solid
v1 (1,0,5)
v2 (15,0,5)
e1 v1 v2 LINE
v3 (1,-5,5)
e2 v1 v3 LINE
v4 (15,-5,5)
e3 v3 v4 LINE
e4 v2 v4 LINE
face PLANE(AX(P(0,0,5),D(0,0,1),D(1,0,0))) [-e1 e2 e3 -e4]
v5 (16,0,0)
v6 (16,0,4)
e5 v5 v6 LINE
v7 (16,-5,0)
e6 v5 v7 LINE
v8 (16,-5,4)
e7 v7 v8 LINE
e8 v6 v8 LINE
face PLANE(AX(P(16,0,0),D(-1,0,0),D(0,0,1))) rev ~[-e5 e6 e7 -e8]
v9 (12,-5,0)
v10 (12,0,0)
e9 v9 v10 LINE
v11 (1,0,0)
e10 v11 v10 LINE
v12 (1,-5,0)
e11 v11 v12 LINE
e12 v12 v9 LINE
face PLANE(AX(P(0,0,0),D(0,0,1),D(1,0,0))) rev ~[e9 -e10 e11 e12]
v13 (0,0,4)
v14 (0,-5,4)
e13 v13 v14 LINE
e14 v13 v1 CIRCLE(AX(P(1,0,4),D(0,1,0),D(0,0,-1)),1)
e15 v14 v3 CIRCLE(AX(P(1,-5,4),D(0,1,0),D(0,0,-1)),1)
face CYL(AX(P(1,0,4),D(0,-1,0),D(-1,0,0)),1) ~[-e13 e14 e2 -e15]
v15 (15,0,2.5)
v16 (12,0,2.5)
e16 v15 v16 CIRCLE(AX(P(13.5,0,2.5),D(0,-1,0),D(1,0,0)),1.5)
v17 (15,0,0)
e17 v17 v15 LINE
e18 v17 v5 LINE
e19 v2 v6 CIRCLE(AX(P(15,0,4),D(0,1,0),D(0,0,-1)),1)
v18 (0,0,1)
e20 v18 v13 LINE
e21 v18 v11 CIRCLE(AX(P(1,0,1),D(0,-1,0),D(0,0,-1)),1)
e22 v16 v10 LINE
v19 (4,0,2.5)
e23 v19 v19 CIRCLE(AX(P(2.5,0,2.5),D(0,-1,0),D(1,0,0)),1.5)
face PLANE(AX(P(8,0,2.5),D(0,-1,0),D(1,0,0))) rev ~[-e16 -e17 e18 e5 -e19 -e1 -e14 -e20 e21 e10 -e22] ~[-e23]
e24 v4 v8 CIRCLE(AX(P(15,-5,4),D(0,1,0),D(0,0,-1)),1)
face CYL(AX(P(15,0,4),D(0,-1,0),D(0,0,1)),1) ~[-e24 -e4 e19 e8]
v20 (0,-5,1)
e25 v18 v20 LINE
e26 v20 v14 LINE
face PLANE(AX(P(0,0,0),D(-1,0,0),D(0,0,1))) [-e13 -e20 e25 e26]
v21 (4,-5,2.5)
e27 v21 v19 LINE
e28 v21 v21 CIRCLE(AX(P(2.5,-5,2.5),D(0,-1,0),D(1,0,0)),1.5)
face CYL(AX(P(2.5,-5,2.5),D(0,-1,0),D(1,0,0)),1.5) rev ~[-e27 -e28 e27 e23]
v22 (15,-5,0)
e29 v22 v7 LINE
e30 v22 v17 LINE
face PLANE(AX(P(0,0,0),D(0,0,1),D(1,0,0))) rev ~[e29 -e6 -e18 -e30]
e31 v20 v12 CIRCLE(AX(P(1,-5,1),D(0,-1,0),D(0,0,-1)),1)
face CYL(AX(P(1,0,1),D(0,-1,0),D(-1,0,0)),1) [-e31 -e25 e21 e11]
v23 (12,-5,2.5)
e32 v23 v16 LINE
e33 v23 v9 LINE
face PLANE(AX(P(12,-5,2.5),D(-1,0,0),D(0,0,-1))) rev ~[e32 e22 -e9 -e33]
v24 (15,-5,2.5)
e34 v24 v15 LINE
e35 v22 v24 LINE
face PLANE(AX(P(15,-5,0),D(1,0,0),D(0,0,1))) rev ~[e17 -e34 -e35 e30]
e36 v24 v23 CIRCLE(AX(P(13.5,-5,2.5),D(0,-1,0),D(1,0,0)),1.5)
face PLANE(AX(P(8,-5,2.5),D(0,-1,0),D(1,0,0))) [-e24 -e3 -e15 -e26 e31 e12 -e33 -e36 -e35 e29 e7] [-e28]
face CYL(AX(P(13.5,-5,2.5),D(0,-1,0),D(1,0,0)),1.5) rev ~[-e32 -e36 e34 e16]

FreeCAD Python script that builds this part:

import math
import FreeCAD as App
import Part
import Sketcher

V = App.Vector


def edges_at(feature, points):
    """Names of the edges that pass closest to the given points."""
    edges = feature.Shape.Edges
    near = lambda p: min(range(len(edges)), key=lambda i: edges[i].distToShape(Part.Vertex(*p))[0])
    return sorted({f"Edge{near(p) + 1}" for p in points})


def add_polygon(sketch, points):
    """Adds a closed chain of lines whose ends are joined by coincident constraints."""
    first, n = sketch.GeometryCount, len(points)
    for a, b in zip(points, points[1:] + points[:1]):
        sketch.addGeometry(Part.LineSegment(App.Vector(*a, 0), App.Vector(*b, 0)), False)
    for i in range(n):
        sketch.addConstraint(Sketcher.Constraint("Coincident", first + i, 2, first + (i + 1) % n, 1))

doc = App.newDocument("Part")
params = doc.addObject("Spreadsheet::Sheet", "Params")
for row, (alias, value) in enumerate([
    ("sketch1_width", "16 mm"),
    ("sketch1_height", "5 mm"),
    ("pad1_length", "5 mm"),
    ("sketch2_diameter", "3 mm"),
    ("sketch2_height", "2.5 mm"),
    ("fillet_radius", "1 mm"),
], start=1):
    params.set(f"A{row}", alias)
    params.set(f"B{row}", "=" + value)
    params.setAlias(f"B{row}", alias)

body = doc.addObject("PartDesign::Body", "Body")

# Sketch on XZ plane
sketch1 = body.newObject("Sketcher::SketchObject", "Sketch")
sketch1.AttachmentSupport = (doc.getObject("XZ_Plane"), [""])
sketch1.MapMode = "FlatFace"
add_polygon(sketch1, [(0, 5), (0, 0), (16, 0), (16, 5)])  # lines 0-3
sketch1.addConstraint(Sketcher.Constraint("Vertical", 0))
sketch1.addConstraint(Sketcher.Constraint("Horizontal", 1))
sketch1.addConstraint(Sketcher.Constraint("Vertical", 2))
sketch1.addConstraint(Sketcher.Constraint("Horizontal", 3))
sketch1.addConstraint(Sketcher.Constraint("Coincident", 0, 2, -1, 1))
sketch1.addConstraint(Sketcher.Constraint("DistanceX", 1, 1, 1, 2, 16.0))
sketch1.addConstraint(Sketcher.Constraint("DistanceY", 0, 2, 0, 1, 5.0))
sketch1.setExpression("Constraints[9]", "Params.sketch1_width")
sketch1.setExpression("Constraints[10]", "Params.sketch1_height")
pad1 = body.newObject("PartDesign::Pad", "Pad")
pad1.Profile = sketch1
pad1.setExpression("Length", "Params.pad1_length")

# Sketch on XZ plane
sketch2 = body.newObject("Sketcher::SketchObject", "Sketch001")
sketch2.AttachmentSupport = (doc.getObject("XZ_Plane"), [""])
sketch2.MapMode = "FlatFace"
sketch2.AttachmentOffset = App.Placement(V(0, 0, 5), App.Rotation())
sketch2.addGeometry(Part.Circle(V(2.5, 2.5, 0), V(0, 0, 1), 1.5), False)
sketch2.addGeometry(Part.LineSegment(V(15, 0, 0), V(15, 2.5, 0)), False)
sketch2.addGeometry(Part.ArcOfCircle(Part.Circle(V(13.5, 2.5, 0), V(0, 0, 1), 1.5), math.radians(0), math.radians(180)), False)
sketch2.addGeometry(Part.LineSegment(V(12, 2.5, 0), V(12, 0, 0)), False)
sketch2.addGeometry(Part.LineSegment(V(12, 0, 0), V(15, 0, 0)), False)
sketch2.addConstraint(Sketcher.Constraint("Tangent", 1, 2, 2, 1))
sketch2.addConstraint(Sketcher.Constraint("Tangent", 2, 2, 3, 1))
sketch2.addConstraint(Sketcher.Constraint("Coincident", 3, 2, 4, 1))
sketch2.addConstraint(Sketcher.Constraint("Coincident", 4, 2, 1, 1))
sketch2.addConstraint(Sketcher.Constraint("Vertical", 1))
sketch2.addConstraint(Sketcher.Constraint("Vertical", 3))
sketch2.addConstraint(Sketcher.Constraint("Horizontal", 4))
sketch2.addConstraint(Sketcher.Constraint("Equal", 0, 2))
sketch2.addConstraint(Sketcher.Constraint("PointOnObject", 3, 2, -1))
sketch2.addConstraint(Sketcher.Constraint("Horizontal", 0, 3, 2, 3))
sketch2.addConstraint(Sketcher.Constraint("Diameter", 0, 3.0))
sketch2.addConstraint(Sketcher.Constraint("DistanceY", 1, 1, 1, 2, 2.5))
sketch2.addConstraint(Sketcher.Constraint("DistanceX", -1, 1, 1, 2, 15.0))
sketch2.addConstraint(Sketcher.Constraint("DistanceX", 0, 3, 2, 3, 11.0))
sketch2.setExpression("Constraints[10]", "Params.sketch2_diameter")
sketch2.setExpression("Constraints[11]", "Params.sketch2_height")
pocket1 = body.newObject("PartDesign::Pocket", "Pocket")
pocket1.Profile = sketch2
pocket1.Type = "ThroughAll"
doc.recompute()

fillet = body.newObject("PartDesign::Fillet", "Fillet")
fillet.Base = (pocket1, edges_at(pocket1, [(0, -2.5, 0), (0, -2.5, 5), (16, -2.5, 5)]))
fillet.setExpression("Radius", "Params.fillet_radius")

doc.recompute()
